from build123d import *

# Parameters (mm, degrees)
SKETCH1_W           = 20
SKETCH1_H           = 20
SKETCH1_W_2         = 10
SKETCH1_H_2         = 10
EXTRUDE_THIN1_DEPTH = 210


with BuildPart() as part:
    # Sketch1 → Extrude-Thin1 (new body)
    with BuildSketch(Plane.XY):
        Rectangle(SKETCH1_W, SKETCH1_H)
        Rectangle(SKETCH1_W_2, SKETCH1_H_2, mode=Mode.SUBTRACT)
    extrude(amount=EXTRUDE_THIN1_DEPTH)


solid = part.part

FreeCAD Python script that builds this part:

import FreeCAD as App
import Part
import Sketcher
Q = App.Units.Quantity

doc = App.newDocument("Part")
body = doc.addObject("PartDesign::Body", "Body")

# Sketch on XY plane
sketch1 = body.newObject("Sketcher::SketchObject", "Sketch")
sketch1.AttachmentSupport = (doc.getObject("XY_Plane"), [""])
sketch1.MapMode = "FlatFace"
sketch1.addGeometry([
    Part.LineSegment(App.Vector(-10, 10, 0), App.Vector(-10, -10, 0)),  # 0
    Part.LineSegment(App.Vector(-10, -10, 0), App.Vector(10, -10, 0)),  # 1
    Part.LineSegment(App.Vector(10, -10, 0), App.Vector(10, 10, 0)),  # 2
    Part.LineSegment(App.Vector(10, 10, 0), App.Vector(-10, 10, 0)),  # 3
    Part.LineSegment(App.Vector(5, -5, 0), App.Vector(-5, -5, 0)),  # 4
    Part.LineSegment(App.Vector(-5, -5, 0), App.Vector(-5, 5, 0)),  # 5
    Part.LineSegment(App.Vector(-5, 5, 0), App.Vector(5, 5, 0)),  # 6
    Part.LineSegment(App.Vector(5, 5, 0), App.Vector(5, -5, 0)),  # 7
], False)
sketch1.addConstraint([
    Sketcher.Constraint("Coincident", 0, 2, 1, 1),
    Sketcher.Constraint("Coincident", 1, 2, 2, 1),
    Sketcher.Constraint("Coincident", 2, 2, 3, 1),
    Sketcher.Constraint("Coincident", 3, 2, 0, 1),
    Sketcher.Constraint("Coincident", 4, 2, 5, 1),
    Sketcher.Constraint("Coincident", 5, 2, 6, 1),
    Sketcher.Constraint("Coincident", 6, 2, 7, 1),
    Sketcher.Constraint("Coincident", 7, 2, 4, 1),
    Sketcher.Constraint("Vertical", 0),
    Sketcher.Constraint("Horizontal", 1),
    Sketcher.Constraint("Vertical", 2),
    Sketcher.Constraint("Horizontal", 3),
    Sketcher.Constraint("Horizontal", 4),
    Sketcher.Constraint("Vertical", 5),
    Sketcher.Constraint("Horizontal", 6),
    Sketcher.Constraint("Vertical", 7),
    Sketcher.Constraint("Symmetric", 0, 2, 2, 2, -1, 1),
    Sketcher.Constraint("Symmetric", 4, 2, 6, 2, -1, 1),
    Sketcher.Constraint("Equal", 3, 0),
    Sketcher.Constraint("Equal", 6, 5),
    Sketcher.Constraint("DistanceX", 1, 1, 1, 2, Q("20 mm")),
    Sketcher.Constraint("DistanceX", 4, 2, 4, 1, Q("10 mm")),
])
pad1 = body.newObject("PartDesign::Pad", "Pad")
pad1.Profile = sketch1
pad1.Length = 210

doc.recompute()
